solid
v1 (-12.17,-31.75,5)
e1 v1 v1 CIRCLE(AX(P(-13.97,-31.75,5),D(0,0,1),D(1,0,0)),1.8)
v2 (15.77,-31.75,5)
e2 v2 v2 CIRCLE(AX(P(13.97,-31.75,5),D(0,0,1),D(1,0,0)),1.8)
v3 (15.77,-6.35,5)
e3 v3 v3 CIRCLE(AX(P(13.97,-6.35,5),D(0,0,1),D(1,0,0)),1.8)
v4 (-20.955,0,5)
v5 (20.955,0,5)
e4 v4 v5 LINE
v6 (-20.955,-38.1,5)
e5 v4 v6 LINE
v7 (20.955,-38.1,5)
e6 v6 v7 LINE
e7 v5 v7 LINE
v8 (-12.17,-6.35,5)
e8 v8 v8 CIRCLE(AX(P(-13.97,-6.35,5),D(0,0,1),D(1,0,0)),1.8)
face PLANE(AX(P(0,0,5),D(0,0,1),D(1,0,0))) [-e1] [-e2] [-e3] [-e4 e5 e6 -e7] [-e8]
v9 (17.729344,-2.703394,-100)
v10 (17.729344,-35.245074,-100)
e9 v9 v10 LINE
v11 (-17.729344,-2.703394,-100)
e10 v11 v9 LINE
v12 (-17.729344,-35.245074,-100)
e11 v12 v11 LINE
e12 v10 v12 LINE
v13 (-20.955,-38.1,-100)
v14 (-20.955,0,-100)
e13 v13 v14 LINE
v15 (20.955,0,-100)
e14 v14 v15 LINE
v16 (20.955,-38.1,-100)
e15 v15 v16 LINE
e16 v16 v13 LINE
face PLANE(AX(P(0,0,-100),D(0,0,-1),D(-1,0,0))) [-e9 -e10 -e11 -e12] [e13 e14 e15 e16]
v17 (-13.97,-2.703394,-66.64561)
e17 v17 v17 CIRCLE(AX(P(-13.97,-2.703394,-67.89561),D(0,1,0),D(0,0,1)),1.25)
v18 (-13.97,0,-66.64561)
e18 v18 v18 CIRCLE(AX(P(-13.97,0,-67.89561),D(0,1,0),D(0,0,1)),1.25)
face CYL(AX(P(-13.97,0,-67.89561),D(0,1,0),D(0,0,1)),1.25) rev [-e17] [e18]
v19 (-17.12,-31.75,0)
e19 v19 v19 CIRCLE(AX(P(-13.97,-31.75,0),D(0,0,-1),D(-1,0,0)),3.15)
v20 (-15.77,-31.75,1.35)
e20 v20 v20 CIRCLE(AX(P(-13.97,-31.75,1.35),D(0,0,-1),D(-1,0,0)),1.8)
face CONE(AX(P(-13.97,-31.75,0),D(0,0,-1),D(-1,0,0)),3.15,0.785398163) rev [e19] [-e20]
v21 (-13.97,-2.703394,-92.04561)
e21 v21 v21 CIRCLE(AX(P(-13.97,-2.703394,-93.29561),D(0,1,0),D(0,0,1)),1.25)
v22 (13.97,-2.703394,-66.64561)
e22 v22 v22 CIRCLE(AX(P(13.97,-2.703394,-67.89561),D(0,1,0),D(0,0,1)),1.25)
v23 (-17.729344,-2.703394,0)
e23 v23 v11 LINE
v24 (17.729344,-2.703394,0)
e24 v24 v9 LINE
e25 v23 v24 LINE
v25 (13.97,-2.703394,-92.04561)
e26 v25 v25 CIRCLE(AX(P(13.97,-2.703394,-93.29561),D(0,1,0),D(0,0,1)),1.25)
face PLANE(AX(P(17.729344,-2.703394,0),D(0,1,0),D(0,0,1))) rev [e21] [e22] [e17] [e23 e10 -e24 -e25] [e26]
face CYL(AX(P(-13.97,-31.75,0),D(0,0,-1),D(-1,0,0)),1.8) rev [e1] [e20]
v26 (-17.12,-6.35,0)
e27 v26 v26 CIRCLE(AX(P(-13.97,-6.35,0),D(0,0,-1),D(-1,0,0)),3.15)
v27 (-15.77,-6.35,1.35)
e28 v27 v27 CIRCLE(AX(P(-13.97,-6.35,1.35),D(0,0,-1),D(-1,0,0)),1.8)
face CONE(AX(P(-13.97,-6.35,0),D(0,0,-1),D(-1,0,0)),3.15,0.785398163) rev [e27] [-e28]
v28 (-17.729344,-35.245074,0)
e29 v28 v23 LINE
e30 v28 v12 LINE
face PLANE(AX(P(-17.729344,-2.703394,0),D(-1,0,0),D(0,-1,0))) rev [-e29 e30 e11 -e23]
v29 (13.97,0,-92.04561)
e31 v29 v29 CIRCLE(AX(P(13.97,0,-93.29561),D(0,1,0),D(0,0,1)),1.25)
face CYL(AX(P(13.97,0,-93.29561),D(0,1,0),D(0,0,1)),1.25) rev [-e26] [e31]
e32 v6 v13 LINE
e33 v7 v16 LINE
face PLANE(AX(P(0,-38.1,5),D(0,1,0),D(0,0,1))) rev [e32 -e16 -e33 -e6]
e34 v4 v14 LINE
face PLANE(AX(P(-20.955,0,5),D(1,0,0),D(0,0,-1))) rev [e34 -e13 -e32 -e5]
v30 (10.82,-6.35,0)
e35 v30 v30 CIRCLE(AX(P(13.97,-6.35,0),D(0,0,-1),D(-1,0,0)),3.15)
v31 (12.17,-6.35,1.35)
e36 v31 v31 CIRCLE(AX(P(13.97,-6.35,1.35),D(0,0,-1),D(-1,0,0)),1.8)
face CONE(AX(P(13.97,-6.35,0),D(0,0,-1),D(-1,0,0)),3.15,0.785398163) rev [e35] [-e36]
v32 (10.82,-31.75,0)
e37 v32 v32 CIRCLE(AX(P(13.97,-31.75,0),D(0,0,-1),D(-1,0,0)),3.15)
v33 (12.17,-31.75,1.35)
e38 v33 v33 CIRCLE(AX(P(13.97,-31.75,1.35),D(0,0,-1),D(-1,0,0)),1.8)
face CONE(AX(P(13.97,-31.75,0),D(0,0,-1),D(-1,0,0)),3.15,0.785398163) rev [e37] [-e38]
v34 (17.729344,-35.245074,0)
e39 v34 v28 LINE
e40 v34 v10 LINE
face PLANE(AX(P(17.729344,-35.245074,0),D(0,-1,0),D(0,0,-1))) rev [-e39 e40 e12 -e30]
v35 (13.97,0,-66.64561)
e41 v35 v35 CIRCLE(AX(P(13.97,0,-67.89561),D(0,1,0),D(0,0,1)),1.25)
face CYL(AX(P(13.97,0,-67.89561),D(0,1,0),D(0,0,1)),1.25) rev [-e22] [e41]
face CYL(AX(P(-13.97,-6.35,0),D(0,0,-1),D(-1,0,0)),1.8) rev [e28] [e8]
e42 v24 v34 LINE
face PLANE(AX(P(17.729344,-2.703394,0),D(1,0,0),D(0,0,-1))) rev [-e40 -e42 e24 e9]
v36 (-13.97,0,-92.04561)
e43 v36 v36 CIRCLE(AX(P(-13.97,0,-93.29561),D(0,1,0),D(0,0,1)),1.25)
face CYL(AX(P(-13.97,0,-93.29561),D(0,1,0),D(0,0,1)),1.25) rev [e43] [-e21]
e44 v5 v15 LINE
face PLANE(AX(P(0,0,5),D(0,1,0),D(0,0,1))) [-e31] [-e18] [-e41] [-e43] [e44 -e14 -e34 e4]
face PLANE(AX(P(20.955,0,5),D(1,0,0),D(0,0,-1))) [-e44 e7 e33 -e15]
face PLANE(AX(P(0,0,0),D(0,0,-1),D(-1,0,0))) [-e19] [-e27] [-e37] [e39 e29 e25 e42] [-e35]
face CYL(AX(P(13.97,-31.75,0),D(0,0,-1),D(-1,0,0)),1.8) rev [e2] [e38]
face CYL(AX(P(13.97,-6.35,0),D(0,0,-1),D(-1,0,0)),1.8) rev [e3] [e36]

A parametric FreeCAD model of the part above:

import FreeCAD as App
import Part
import Sketcher
from FreeCAD import Vector
Q = App.Units.Quantity


def add_polygon(sketch, points):
    """Adds a closed chain of lines whose ends are joined by coincident constraints."""
    first, n = sketch.GeometryCount, len(points)
    for a, b in zip(points, points[1:] + points[:1]):
        sketch.addGeometry(Part.LineSegment(App.Vector(*a, 0), App.Vector(*b, 0)), False)
    for i in range(n):
        sketch.addConstraint(Sketcher.Constraint("Coincident", first + i, 2, first + (i + 1) % n, 1))

doc = App.newDocument("Part")
body = doc.addObject("PartDesign::Body", "Body")

sketch1 = body.newObject("Sketcher::SketchObject", "Sketch")
sketch1.AttachmentSupport = (doc.getObject("XY_Plane"), [""])
sketch1.MapMode = "FlatFace"
add_polygon(sketch1, [(20.955, -38.1), (20.955, 0), (-20.955, 0), (-20.955, -38.1)])
sketch1.addConstraint(Sketcher.Constraint("Vertical", 0))
sketch1.addConstraint(Sketcher.Constraint("Horizontal", 1))
sketch1.addConstraint(Sketcher.Constraint("Vertical", 2))
sketch1.addConstraint(Sketcher.Constraint("Horizontal", 3))
sketch1.addConstraint(Sketcher.Constraint("Symmetric", 0, 2, 1, 2, -1, 1))
sketch1.addConstraint(Sketcher.Constraint("DistanceY", 0, 1, 0, 2, Q("38.1 mm")))
sketch1.addConstraint(Sketcher.Constraint("DistanceX", 1, 2, 1, 1, Q("41.91 mm")))
pad1 = body.newObject("PartDesign::Pad", "Pad")
pad1.Profile = sketch1
pad1.Length = 5

sketch2 = body.newObject("Sketcher::SketchObject", "Sketch001")
sketch2.AttachmentSupport = (doc.getObject("XY_Plane"), [""])
sketch2.MapMode = "FlatFace"
sketch2.addGeometry(Part.Circle(Vector(-13.97, -6.35, 0), Vector(0, 0, 1), 1.8), False)
sketch2.addConstraint(Sketcher.Constraint("Diameter", 0, Q("3.6 mm")))
sketch2.addConstraint(Sketcher.Constraint("DistanceX", 0, 3, -1, 1, Q("13.97 mm")))
sketch2.addConstraint(Sketcher.Constraint("DistanceY", 0, 3, -1, 1, Q("6.35 mm")))
doc.recompute()
hole = body.newObject("PartDesign::Hole", "Hole")
hole.Profile = sketch2
hole.ThreadType = "None"
hole.Diameter = 3.6
hole.DepthType = "Dimension"
hole.Depth = 10
hole.DrillPoint = "Angled"
hole.DrillPointAngle = 118
hole.HoleCutType = "Countersink"
hole.HoleCutDiameter = 6.3
hole.HoleCutCountersinkAngle = 90
hole.Reversed = True

sketch3 = body.newObject("Sketcher::SketchObject", "Sketch002")
sketch3.AttachmentSupport = (doc.getObject("XY_Plane"), [""])
sketch3.MapMode = "FlatFace"
sketch3.addGeometry(Part.Circle(Vector(-13.97, -31.75, 0), Vector(0, 0, 1), 1.8), False)
sketch3.addGeometry(Part.Circle(Vector(-13.97, -6.35, 0), Vector(0, 0, 1), 1.8), False)
sketch3.addGeometry(Part.Circle(Vector(13.97, -6.35, 0), Vector(0, 0, 1), 1.8), False)
sketch3.addGeometry(Part.Circle(Vector(13.97, -31.75, 0), Vector(0, 0, 1), 1.8), False)
sketch3.addConstraint(Sketcher.Constraint("Equal", 0, 1))
sketch3.addConstraint(Sketcher.Constraint("Equal", 1, 2))
sketch3.addConstraint(Sketcher.Constraint("Equal", 2, 3))
sketch3.addConstraint(Sketcher.Constraint("Symmetric", 1, 3, 2, 3, -2))
sketch3.addConstraint(Sketcher.Constraint("Symmetric", 0, 3, 3, 3, -2))
sketch3.addConstraint(Sketcher.Constraint("Vertical", 0, 3, 1, 3))
sketch3.addConstraint(Sketcher.Constraint("Diameter", 0, Q("3.6 mm")))
sketch3.addConstraint(Sketcher.Constraint("DistanceY", 0, 3, 1, 3, Q("25.4 mm")))
sketch3.addConstraint(Sketcher.Constraint("DistanceX", 0, 3, -1, 1, Q("13.97 mm")))
sketch3.addConstraint(Sketcher.Constraint("DistanceY", 0, 3, -1, 1, Q("31.75 mm")))
doc.recompute()
hole2 = body.newObject("PartDesign::Hole", "Hole001")
hole2.Profile = sketch3
hole2.ThreadType = "None"
hole2.Diameter = 3.6
hole2.DepthType = "Dimension"
hole2.Depth = 10
hole2.DrillPoint = "Angled"
hole2.DrillPointAngle = 118
hole2.HoleCutType = "Countersink"
hole2.HoleCutDiameter = 6.3
hole2.HoleCutCountersinkAngle = 90
hole2.Reversed = True

sketch4 = body.newObject("Sketcher::SketchObject", "Sketch003")
sketch4.AttachmentSupport = (doc.getObject("XY_Plane"), [""])
sketch4.MapMode = "FlatFace"
add_polygon(sketch4, [(20.955, 0), (20.955, -38.1), (-20.955, -38.1), (-20.955, 0)])
sketch4.addConstraint(Sketcher.Constraint("Vertical", 0))
sketch4.addConstraint(Sketcher.Constraint("Horizontal", 1))
sketch4.addConstraint(Sketcher.Constraint("Vertical", 2))
sketch4.addConstraint(Sketcher.Constraint("Horizontal", 3))
sketch4.addConstraint(Sketcher.Constraint("Symmetric", 2, 2, 3, 2, -1, 1))
sketch4.addConstraint(Sketcher.Constraint("DistanceY", 0, 2, 0, 1, Q("38.1 mm")))
sketch4.addConstraint(Sketcher.Constraint("DistanceX", 1, 2, 1, 1, Q("41.91 mm")))
pad2 = body.newObject("PartDesign::Pad", "Pad001")
pad2.Profile = sketch4
pad2.Length = 100
pad2.Reversed = True

sketch5 = body.newObject("Sketcher::SketchObject", "Sketch004")
sketch5.AttachmentSupport = (doc.getObject("XY_Plane"), [""])
sketch5.MapMode = "FlatFace"
sketch5.AttachmentOffset = App.Placement(Vector(0, 0, -100), App.Rotation())
add_polygon(sketch5, [(17.729344, -2.703394), (17.729344, -35.245074), (-17.729344, -35.245074), (-17.729344, -2.703394)])
sketch5.addConstraint(Sketcher.Constraint("Vertical", 0))
sketch5.addConstraint(Sketcher.Constraint("Horizontal", 1))
sketch5.addConstraint(Sketcher.Constraint("Vertical", 2))
sketch5.addConstraint(Sketcher.Constraint("Horizontal", 3))
sketch5.addConstraint(Sketcher.Constraint("DistanceY", 0, 2, 0, 1, Q("32.54168 mm")))
sketch5.addConstraint(Sketcher.Constraint("DistanceX", 1, 2, 1, 1, Q("35.458687 mm")))
sketch5.addConstraint(Sketcher.Constraint("DistanceX", -1, 1, 0, 2, Q("17.729344 mm")))
sketch5.addConstraint(Sketcher.Constraint("DistanceY", 0, 2, -1, 1, Q("35.245074 mm")))
pocket1 = body.newObject("PartDesign::Pocket", "Pocket")
pocket1.Profile = sketch5
pocket1.Length = 100
pocket1.Reversed = True

sketch6 = body.newObject("Sketcher::SketchObject", "Sketch005")
sketch6.AttachmentSupport = (doc.getObject("XZ_Plane"), [""])
sketch6.MapMode = "FlatFace"
sketch6.addGeometry(Part.Circle(Vector(-13.97, -93.29561, 0), Vector(0, 0, 1), 1.25), False)
sketch6.addGeometry(Part.Circle(Vector(-13.97, -67.89561, 0), Vector(0, 0, 1), 1.25), False)
sketch6.addGeometry(Part.Circle(Vector(13.97, -67.89561, 0), Vector(0, 0, 1), 1.25), False)
sketch6.addGeometry(Part.Circle(Vector(13.97, -93.29561, 0), Vector(0, 0, 1), 1.25), False)
sketch6.addConstraint(Sketcher.Constraint("Equal", 0, 1))
sketch6.addConstraint(Sketcher.Constraint("Equal", 1, 2))
sketch6.addConstraint(Sketcher.Constraint("Equal", 2, 3))
sketch6.addConstraint(Sketcher.Constraint("Symmetric", 1, 3, 2, 3, -2))
sketch6.addConstraint(Sketcher.Constraint("Symmetric", 0, 3, 3, 3, -2))
sketch6.addConstraint(Sketcher.Constraint("Vertical", 0, 3, 1, 3))
sketch6.addConstraint(Sketcher.Constraint("Diameter", 0, Q("2.5 mm")))
sketch6.addConstraint(Sketcher.Constraint("DistanceY", 0, 3, 1, 3, Q("25.4 mm")))
sketch6.addConstraint(Sketcher.Constraint("DistanceX", 0, 3, -1, 1, Q("13.97 mm")))
sketch6.addConstraint(Sketcher.Constraint("DistanceY", 0, 3, -1, 1, Q("93.29561 mm")))
doc.recompute()
hole3 = body.newObject("PartDesign::Hole", "Hole002")
hole3.Profile = sketch6
hole3.ThreadType = "None"
hole3.Diameter = 2.5
hole3.DepthType = "Dimension"
hole3.Depth = 10
hole3.DrillPoint = "Angled"
hole3.DrillPointAngle = 118
hole3.Reversed = True

doc.recompute()
